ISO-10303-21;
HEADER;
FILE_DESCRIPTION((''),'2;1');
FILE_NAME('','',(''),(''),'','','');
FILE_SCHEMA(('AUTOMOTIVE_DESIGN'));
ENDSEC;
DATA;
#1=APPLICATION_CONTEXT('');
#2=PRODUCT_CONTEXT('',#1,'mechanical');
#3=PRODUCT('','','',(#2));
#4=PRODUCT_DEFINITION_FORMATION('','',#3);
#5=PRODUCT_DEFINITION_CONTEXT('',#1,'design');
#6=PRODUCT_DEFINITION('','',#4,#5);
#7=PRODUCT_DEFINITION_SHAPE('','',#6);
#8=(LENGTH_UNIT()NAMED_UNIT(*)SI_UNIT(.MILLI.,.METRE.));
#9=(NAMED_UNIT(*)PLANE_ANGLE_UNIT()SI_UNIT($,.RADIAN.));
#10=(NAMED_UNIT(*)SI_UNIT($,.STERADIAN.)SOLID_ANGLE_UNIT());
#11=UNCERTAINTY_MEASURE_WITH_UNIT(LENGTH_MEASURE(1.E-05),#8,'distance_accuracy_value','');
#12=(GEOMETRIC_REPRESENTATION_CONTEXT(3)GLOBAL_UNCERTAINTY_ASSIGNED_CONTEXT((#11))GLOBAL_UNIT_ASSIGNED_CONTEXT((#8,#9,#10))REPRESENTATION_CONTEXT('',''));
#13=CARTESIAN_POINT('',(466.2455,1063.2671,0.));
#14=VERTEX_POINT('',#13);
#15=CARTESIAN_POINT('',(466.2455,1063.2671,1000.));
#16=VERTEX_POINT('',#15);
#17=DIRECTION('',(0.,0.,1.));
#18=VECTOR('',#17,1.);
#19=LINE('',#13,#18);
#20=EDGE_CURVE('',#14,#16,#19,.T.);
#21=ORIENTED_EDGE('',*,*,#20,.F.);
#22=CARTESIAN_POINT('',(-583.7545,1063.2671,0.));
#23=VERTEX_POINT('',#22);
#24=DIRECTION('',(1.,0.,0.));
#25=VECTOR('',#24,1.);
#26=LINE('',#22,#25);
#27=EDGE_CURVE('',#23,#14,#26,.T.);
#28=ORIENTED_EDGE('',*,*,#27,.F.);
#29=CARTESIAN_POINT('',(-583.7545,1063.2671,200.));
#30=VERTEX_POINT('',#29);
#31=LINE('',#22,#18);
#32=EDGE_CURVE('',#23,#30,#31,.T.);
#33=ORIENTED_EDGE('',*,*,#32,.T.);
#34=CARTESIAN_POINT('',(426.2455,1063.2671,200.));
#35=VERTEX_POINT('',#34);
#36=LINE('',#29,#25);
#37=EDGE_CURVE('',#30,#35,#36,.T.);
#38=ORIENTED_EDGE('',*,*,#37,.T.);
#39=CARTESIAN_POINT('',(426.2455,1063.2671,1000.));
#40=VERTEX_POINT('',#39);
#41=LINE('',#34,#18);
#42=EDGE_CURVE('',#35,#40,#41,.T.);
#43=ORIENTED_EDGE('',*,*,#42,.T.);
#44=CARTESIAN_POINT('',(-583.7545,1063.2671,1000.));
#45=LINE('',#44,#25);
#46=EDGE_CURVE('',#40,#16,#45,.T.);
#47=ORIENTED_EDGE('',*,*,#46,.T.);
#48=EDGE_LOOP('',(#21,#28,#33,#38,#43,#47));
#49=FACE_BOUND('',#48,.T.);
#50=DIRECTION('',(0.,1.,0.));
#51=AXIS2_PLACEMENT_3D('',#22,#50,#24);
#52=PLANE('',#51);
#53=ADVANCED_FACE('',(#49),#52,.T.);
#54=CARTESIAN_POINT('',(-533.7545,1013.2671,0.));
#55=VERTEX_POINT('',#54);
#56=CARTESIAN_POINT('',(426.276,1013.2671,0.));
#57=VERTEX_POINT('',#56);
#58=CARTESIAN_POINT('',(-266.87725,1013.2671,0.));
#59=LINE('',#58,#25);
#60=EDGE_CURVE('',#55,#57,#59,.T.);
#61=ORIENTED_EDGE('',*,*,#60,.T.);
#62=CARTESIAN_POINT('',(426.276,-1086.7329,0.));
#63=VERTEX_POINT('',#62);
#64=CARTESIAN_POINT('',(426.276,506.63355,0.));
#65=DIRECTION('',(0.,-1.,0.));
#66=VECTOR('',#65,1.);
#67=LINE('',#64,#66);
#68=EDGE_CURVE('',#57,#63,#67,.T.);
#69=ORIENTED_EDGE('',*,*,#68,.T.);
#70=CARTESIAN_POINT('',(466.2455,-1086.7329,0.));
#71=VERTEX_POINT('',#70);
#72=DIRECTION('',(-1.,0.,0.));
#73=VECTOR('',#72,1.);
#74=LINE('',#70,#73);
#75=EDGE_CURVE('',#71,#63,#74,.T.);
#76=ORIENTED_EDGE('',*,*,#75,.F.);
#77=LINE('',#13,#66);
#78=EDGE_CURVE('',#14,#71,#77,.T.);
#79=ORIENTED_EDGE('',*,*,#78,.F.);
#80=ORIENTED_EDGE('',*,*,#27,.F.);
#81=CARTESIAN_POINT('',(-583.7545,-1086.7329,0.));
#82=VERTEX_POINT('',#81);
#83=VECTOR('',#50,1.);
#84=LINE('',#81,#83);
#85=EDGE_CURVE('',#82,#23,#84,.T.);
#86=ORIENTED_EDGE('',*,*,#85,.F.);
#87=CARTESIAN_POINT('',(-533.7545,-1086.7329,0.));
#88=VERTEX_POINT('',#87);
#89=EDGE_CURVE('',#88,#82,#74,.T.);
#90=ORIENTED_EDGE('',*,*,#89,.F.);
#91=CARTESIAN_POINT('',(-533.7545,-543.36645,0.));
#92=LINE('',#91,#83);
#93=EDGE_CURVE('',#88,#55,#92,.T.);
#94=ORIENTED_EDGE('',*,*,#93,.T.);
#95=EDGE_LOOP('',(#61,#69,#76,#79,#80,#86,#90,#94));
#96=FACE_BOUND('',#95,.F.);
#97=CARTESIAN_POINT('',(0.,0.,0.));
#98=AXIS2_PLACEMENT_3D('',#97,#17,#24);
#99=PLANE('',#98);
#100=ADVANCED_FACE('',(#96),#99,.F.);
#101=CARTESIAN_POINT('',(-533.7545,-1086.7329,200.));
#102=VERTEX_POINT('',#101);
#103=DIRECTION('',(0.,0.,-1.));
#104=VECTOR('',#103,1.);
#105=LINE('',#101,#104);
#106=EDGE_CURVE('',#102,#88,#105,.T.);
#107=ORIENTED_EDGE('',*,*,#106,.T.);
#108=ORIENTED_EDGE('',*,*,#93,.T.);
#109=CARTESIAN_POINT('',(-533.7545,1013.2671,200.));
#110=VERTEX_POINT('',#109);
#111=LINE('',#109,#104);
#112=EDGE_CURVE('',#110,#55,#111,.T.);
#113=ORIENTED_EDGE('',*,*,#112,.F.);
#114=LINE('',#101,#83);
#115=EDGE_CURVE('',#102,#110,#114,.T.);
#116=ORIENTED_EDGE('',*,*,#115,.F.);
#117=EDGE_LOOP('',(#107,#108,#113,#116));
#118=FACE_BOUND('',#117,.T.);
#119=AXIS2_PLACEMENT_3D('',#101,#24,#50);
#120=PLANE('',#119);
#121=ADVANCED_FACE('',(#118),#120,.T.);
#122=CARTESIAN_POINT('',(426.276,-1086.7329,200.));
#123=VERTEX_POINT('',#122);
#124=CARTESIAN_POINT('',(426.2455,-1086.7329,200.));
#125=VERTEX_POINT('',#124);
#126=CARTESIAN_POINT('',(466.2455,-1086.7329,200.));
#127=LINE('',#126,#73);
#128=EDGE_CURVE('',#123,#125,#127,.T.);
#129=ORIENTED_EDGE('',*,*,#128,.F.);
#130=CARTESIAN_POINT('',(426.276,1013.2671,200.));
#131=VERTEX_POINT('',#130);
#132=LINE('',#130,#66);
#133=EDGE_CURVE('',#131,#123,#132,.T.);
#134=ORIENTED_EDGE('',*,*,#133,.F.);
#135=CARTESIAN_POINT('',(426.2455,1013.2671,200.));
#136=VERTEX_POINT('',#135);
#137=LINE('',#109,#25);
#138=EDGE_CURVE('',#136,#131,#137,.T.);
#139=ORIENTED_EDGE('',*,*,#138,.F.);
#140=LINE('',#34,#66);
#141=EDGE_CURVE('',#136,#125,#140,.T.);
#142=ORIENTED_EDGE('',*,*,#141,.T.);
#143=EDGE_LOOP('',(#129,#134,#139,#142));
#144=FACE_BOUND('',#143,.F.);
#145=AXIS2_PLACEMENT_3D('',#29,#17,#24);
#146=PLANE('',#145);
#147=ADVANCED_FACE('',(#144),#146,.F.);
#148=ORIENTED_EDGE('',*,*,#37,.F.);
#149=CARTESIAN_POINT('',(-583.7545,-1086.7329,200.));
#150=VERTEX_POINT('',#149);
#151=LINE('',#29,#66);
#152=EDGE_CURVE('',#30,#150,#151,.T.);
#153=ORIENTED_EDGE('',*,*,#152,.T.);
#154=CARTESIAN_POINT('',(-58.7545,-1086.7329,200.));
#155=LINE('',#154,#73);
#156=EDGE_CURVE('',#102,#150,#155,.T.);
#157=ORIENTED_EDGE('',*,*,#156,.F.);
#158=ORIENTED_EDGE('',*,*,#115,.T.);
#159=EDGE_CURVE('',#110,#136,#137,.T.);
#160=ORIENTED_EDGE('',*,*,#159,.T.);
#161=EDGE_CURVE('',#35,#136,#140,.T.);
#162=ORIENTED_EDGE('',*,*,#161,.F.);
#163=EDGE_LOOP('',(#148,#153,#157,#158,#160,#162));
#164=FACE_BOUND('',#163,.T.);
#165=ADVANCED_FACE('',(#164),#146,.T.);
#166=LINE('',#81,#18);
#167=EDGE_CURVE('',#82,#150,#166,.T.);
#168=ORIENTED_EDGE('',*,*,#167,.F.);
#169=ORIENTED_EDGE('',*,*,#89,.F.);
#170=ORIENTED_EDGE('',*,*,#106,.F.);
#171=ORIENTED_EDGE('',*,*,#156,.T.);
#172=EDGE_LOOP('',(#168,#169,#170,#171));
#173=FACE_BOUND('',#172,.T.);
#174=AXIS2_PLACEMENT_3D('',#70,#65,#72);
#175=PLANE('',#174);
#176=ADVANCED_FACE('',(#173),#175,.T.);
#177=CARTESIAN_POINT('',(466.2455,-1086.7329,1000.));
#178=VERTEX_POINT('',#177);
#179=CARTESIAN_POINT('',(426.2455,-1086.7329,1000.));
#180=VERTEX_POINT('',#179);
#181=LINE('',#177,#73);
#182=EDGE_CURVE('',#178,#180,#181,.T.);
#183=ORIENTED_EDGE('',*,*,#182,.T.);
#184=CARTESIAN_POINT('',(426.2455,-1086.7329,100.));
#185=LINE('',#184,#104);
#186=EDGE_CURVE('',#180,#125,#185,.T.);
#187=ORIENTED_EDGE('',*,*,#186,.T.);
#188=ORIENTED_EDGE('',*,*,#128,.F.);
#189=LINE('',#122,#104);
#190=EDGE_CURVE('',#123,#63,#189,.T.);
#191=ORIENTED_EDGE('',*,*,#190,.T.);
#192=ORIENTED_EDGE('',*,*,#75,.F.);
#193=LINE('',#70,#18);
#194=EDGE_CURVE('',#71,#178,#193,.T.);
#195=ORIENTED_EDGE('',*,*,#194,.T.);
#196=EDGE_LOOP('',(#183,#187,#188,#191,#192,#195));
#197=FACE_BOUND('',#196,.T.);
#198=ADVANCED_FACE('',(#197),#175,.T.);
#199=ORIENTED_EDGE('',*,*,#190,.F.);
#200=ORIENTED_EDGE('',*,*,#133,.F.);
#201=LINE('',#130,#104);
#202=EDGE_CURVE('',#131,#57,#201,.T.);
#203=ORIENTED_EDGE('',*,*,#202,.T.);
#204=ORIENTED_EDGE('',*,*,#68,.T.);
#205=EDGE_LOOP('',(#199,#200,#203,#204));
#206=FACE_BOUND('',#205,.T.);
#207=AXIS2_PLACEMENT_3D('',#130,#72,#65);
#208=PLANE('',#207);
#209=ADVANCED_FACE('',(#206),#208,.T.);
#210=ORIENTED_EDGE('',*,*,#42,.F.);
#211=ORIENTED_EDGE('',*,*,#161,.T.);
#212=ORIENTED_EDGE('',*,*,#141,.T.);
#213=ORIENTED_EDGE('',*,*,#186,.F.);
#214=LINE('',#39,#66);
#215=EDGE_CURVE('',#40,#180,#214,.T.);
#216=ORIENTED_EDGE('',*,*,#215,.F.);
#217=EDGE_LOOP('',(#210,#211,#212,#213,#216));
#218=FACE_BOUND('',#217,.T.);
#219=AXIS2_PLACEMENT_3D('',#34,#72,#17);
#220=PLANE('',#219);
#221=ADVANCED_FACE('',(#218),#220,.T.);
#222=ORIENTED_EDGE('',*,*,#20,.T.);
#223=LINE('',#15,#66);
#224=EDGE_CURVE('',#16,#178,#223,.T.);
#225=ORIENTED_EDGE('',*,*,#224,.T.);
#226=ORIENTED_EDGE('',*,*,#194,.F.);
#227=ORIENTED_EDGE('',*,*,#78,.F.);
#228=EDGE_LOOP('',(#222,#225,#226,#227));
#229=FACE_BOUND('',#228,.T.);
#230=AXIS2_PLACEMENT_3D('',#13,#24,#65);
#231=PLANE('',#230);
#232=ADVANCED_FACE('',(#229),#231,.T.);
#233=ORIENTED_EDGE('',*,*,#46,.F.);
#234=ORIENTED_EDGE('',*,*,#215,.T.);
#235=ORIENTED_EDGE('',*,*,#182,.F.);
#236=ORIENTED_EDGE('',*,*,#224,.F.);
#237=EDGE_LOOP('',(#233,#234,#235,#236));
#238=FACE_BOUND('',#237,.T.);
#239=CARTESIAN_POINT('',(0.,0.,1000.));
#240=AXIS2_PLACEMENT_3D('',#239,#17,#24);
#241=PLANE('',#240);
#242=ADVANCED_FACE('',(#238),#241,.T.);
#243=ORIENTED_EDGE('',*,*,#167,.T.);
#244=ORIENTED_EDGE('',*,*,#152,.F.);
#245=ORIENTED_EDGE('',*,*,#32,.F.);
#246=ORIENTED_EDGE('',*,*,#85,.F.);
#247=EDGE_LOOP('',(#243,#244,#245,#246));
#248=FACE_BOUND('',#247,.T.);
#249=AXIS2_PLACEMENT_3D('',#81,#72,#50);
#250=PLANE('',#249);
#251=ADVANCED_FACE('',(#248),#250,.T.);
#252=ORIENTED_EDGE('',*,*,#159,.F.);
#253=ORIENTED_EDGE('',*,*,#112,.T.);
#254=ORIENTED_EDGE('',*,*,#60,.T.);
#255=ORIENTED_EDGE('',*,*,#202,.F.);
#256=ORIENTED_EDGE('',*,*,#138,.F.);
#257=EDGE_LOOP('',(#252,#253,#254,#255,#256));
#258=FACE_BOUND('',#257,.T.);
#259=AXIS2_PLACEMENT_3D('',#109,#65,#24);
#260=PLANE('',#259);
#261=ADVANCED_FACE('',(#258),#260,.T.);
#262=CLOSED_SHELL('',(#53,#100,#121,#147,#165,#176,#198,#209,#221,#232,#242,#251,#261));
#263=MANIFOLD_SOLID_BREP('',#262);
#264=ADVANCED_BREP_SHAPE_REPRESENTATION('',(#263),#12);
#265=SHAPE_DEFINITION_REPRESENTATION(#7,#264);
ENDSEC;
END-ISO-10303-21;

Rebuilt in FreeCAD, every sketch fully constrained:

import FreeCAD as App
import Part
import Sketcher
from FreeCAD import Vector

doc = App.newDocument("Part")
body = doc.addObject("PartDesign::Body", "Body")

sketch1 = body.newObject("Sketcher::SketchObject", "Sketch")
sketch1.AttachmentSupport = (doc.getObject("XY_Plane"), [""])
sketch1.MapMode = "FlatFace"
sketch1.addGeometry([
    Part.LineSegment(Vector(466, 1063, 0), Vector(-584, 1063, 0)),
    Part.LineSegment(Vector(-584, 1063, 0), Vector(-584, -1087, 0)),
    Part.LineSegment(Vector(-584, -1087, 0), Vector(466, -1087, 0)),
    Part.LineSegment(Vector(466, -1087, 0), Vector(466, 1063, 0)),
], False)
sketch1.addConstraint([
    Sketcher.Constraint("Coincident", 0, 2, 1, 1),
    Sketcher.Constraint("Coincident", 1, 2, 2, 1),
    Sketcher.Constraint("Coincident", 2, 2, 3, 1),
    Sketcher.Constraint("Coincident", 3, 2, 0, 1),
    Sketcher.Constraint("Horizontal", 0),
    Sketcher.Constraint("Vertical", 1),
    Sketcher.Constraint("Horizontal", 2),
    Sketcher.Constraint("Vertical", 3),
    Sketcher.Constraint("DistanceX", 0, 2, 0, 1, 1050.0),
    Sketcher.Constraint("DistanceY", 1, 2, 1, 1, 2150.0),
    Sketcher.Constraint("DistanceY", -1, 1, 0, 2, 1063.267),
    Sketcher.Constraint("DistanceX", 0, 2, -1, 1, 583.7545),
])
pad1 = body.newObject("PartDesign::Pad", "Pad")
pad1.Profile = sketch1
pad1.Length = 1000

sketch2 = body.newObject("Sketcher::SketchObject", "Sketch001")
sketch2.AttachmentSupport = (doc.getObject("XZ_Plane"), [""])
sketch2.MapMode = "FlatFace"
sketch2.AttachmentOffset = App.Placement(Vector(0, 0, -1063.2671), App.Rotation())
sketch2.addGeometry([
    Part.LineSegment(Vector(426, 200, 0), Vector(-584, 200, 0)),
    Part.LineSegment(Vector(-584, 200, 0), Vector(-584, 1000, 0)),
    Part.LineSegment(Vector(-584, 1000, 0), Vector(426, 1000, 0)),
    Part.LineSegment(Vector(426, 1000, 0), Vector(426, 200, 0)),
], False)
sketch2.addConstraint([
    Sketcher.Constraint("Coincident", 0, 2, 1, 1),
    Sketcher.Constraint("Coincident", 1, 2, 2, 1),
    Sketcher.Constraint("Coincident", 2, 2, 3, 1),
    Sketcher.Constraint("Coincident", 3, 2, 0, 1),
    Sketcher.Constraint("Horizontal", 0),
    Sketcher.Constraint("Vertical", 1),
    Sketcher.Constraint("Horizontal", 2),
    Sketcher.Constraint("Vertical", 3),
    Sketcher.Constraint("DistanceY", -1, 1, 0, 2, 200.0),
    Sketcher.Constraint("DistanceX", 0, 2, 0, 1, 1010.0),
    Sketcher.Constraint("DistanceY", 1, 1, 1, 2, 800.0),
    Sketcher.Constraint("DistanceX", 0, 2, -1, 1, 583.7545),
])
pocket1 = body.newObject("PartDesign::Pocket", "Pocket")
pocket1.Profile = sketch2
pocket1.Type = "ThroughAll"
pocket1.Reversed = True

sketch3 = body.newObject("Sketcher::SketchObject", "Sketch002")
sketch3.AttachmentSupport = (doc.getObject("XY_Plane"), [""])
sketch3.MapMode = "FlatFace"
sketch3.AttachmentOffset = App.Placement(Vector(0, 0, 200), App.Rotation())
sketch3.addGeometry([
    Part.LineSegment(Vector(-534, -1087, 0), Vector(426, -1087, 0)),
    Part.LineSegment(Vector(426, -1087, 0), Vector(426, 1013, 0)),
    Part.LineSegment(Vector(426, 1013, 0), Vector(-534, 1013, 0)),
    Part.LineSegment(Vector(-534, 1013, 0), Vector(-534, -1087, 0)),
], False)
sketch3.addConstraint([
    Sketcher.Constraint("Coincident", 0, 2, 1, 1),
    Sketcher.Constraint("Coincident", 1, 2, 2, 1),
    Sketcher.Constraint("Coincident", 2, 2, 3, 1),
    Sketcher.Constraint("Coincident", 3, 2, 0, 1),
    Sketcher.Constraint("Horizontal", 0),
    Sketcher.Constraint("Vertical", 1),
    Sketcher.Constraint("Horizontal", 2),
    Sketcher.Constraint("Vertical", 3),
    Sketcher.Constraint("DistanceY", 1, 1, 1, 2, 2100.0),
    Sketcher.Constraint("DistanceX", 0, 1, 0, 2, 960.0305),
    Sketcher.Constraint("DistanceX", -1, 1, 0, 2, 426.276),
    Sketcher.Constraint("DistanceY", 0, 2, -1, 1, 1086.733),
])
pocket2 = body.newObject("PartDesign::Pocket", "Pocket001")
pocket2.Profile = sketch3
pocket2.Type = "ThroughAll"

doc.recompute()
